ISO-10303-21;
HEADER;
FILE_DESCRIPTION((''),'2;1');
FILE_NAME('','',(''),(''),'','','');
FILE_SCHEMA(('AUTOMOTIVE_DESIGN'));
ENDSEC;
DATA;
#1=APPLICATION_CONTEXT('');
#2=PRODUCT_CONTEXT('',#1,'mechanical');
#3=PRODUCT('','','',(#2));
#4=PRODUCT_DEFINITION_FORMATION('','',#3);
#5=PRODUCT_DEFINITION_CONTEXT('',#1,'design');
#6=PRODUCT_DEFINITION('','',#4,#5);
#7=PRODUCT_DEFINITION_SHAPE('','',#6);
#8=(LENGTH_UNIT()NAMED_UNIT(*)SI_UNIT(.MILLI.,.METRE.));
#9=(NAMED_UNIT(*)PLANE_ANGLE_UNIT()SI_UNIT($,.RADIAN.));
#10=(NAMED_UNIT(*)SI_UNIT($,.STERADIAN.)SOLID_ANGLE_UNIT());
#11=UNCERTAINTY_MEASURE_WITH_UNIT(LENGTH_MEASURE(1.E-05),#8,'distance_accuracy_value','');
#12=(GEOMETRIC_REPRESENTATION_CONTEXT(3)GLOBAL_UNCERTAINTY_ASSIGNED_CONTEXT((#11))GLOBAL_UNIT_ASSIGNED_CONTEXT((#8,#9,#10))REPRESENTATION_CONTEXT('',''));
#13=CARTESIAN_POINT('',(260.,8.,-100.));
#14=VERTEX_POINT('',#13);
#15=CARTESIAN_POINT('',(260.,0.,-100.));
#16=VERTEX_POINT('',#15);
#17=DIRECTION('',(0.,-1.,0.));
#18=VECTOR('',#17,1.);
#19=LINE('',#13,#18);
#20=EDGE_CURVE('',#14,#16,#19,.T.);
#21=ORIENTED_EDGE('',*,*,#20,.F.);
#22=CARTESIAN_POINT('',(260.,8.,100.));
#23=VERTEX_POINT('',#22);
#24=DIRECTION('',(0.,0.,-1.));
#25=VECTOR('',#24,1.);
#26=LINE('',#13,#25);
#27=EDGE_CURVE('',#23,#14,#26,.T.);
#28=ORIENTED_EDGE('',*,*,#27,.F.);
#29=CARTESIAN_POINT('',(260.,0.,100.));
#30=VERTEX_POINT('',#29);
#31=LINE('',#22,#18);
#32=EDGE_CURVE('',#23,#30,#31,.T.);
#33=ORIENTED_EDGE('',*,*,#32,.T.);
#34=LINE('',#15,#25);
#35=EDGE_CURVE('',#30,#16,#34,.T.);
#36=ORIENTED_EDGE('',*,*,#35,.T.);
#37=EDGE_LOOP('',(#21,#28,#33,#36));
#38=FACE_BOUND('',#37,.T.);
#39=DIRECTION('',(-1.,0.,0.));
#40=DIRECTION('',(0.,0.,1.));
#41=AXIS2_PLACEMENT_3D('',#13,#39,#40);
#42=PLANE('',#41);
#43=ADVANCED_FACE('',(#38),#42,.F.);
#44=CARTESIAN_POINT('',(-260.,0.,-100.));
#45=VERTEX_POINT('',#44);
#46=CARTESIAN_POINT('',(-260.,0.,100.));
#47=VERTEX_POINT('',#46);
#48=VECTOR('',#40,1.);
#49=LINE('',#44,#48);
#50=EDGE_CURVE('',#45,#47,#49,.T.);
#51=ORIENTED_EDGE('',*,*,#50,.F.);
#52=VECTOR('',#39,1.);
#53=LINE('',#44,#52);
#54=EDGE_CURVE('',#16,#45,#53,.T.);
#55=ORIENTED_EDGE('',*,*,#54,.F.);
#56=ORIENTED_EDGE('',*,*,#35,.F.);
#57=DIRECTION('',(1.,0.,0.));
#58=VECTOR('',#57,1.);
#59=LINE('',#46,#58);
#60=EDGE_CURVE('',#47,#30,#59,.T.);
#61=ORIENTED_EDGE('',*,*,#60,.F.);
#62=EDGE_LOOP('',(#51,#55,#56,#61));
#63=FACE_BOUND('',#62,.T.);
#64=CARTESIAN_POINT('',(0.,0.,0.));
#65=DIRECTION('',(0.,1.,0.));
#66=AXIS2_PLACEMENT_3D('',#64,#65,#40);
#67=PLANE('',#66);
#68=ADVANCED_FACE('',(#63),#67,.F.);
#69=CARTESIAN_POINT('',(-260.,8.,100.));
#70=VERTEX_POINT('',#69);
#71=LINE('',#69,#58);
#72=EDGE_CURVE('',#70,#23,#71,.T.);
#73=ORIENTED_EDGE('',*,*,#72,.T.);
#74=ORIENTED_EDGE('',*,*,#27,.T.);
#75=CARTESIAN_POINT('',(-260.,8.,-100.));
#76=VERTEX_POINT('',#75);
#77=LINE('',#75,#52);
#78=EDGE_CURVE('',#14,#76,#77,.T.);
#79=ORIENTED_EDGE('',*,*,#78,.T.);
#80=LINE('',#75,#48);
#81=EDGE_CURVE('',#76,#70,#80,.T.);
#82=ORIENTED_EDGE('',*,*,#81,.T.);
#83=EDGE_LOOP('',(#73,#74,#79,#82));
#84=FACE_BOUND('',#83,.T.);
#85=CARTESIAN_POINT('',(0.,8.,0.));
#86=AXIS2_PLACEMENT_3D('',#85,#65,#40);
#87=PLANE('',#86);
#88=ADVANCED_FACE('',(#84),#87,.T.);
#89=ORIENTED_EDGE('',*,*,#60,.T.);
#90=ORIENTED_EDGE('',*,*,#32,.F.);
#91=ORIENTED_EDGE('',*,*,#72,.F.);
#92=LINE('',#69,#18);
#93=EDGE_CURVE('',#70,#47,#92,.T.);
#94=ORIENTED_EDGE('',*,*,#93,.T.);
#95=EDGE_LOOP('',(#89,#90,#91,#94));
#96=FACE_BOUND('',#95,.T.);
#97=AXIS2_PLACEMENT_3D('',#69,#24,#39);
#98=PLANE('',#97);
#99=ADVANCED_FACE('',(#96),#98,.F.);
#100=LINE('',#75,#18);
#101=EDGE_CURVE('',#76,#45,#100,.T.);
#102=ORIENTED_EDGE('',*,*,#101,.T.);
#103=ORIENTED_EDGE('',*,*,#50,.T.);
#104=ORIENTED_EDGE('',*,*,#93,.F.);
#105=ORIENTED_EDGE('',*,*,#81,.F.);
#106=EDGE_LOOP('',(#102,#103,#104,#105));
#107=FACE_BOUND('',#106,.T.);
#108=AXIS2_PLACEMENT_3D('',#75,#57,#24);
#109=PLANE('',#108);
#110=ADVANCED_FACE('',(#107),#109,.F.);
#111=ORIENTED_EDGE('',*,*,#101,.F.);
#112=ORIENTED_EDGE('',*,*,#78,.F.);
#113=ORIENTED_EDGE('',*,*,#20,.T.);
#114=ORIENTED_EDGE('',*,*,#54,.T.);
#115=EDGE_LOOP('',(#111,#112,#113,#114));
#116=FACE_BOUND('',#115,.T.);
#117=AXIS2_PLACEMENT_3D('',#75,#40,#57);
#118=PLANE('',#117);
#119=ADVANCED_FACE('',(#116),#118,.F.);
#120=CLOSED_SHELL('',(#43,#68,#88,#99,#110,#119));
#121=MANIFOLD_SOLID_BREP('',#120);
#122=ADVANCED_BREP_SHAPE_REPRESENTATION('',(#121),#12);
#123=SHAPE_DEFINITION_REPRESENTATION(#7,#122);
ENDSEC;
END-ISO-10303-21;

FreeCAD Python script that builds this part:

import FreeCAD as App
import Part
import Sketcher


def add_polygon(sketch, points):
    """Adds a closed chain of lines whose ends are joined by coincident constraints."""
    first, n = sketch.GeometryCount, len(points)
    for a, b in zip(points, points[1:] + points[:1]):
        sketch.addGeometry(Part.LineSegment(App.Vector(*a, 0), App.Vector(*b, 0)), False)
    for i in range(n):
        sketch.addConstraint(Sketcher.Constraint("Coincident", first + i, 2, first + (i + 1) % n, 1))

doc = App.newDocument("Part")
body = doc.addObject("PartDesign::Body", "Body")

# Sketch on XZ plane
sketch1 = body.newObject("Sketcher::SketchObject", "Sketch")
sketch1.AttachmentSupport = (doc.getObject("XZ_Plane"), [""])
sketch1.MapMode = "FlatFace"
add_polygon(sketch1, [(-260, -100), (-260, 100), (260, 100), (260, -100)])  # lines 0-3
sketch1.addConstraint([
    Sketcher.Constraint("Vertical", 0),
    Sketcher.Constraint("Horizontal", 1),
    Sketcher.Constraint("Vertical", 2),
    Sketcher.Constraint("Horizontal", 3),
    Sketcher.Constraint("Symmetric", 0, 2, 2, 2, -1, 1),
    Sketcher.Constraint("DistanceX", 1, 1, 1, 2, 520.0),
    Sketcher.Constraint("DistanceY", 0, 1, 0, 2, 200.0),
])
pad1 = body.newObject("PartDesign::Pad", "Pad")
pad1.Profile = sketch1
pad1.Length = 8
pad1.Reversed = True

doc.recompute()
